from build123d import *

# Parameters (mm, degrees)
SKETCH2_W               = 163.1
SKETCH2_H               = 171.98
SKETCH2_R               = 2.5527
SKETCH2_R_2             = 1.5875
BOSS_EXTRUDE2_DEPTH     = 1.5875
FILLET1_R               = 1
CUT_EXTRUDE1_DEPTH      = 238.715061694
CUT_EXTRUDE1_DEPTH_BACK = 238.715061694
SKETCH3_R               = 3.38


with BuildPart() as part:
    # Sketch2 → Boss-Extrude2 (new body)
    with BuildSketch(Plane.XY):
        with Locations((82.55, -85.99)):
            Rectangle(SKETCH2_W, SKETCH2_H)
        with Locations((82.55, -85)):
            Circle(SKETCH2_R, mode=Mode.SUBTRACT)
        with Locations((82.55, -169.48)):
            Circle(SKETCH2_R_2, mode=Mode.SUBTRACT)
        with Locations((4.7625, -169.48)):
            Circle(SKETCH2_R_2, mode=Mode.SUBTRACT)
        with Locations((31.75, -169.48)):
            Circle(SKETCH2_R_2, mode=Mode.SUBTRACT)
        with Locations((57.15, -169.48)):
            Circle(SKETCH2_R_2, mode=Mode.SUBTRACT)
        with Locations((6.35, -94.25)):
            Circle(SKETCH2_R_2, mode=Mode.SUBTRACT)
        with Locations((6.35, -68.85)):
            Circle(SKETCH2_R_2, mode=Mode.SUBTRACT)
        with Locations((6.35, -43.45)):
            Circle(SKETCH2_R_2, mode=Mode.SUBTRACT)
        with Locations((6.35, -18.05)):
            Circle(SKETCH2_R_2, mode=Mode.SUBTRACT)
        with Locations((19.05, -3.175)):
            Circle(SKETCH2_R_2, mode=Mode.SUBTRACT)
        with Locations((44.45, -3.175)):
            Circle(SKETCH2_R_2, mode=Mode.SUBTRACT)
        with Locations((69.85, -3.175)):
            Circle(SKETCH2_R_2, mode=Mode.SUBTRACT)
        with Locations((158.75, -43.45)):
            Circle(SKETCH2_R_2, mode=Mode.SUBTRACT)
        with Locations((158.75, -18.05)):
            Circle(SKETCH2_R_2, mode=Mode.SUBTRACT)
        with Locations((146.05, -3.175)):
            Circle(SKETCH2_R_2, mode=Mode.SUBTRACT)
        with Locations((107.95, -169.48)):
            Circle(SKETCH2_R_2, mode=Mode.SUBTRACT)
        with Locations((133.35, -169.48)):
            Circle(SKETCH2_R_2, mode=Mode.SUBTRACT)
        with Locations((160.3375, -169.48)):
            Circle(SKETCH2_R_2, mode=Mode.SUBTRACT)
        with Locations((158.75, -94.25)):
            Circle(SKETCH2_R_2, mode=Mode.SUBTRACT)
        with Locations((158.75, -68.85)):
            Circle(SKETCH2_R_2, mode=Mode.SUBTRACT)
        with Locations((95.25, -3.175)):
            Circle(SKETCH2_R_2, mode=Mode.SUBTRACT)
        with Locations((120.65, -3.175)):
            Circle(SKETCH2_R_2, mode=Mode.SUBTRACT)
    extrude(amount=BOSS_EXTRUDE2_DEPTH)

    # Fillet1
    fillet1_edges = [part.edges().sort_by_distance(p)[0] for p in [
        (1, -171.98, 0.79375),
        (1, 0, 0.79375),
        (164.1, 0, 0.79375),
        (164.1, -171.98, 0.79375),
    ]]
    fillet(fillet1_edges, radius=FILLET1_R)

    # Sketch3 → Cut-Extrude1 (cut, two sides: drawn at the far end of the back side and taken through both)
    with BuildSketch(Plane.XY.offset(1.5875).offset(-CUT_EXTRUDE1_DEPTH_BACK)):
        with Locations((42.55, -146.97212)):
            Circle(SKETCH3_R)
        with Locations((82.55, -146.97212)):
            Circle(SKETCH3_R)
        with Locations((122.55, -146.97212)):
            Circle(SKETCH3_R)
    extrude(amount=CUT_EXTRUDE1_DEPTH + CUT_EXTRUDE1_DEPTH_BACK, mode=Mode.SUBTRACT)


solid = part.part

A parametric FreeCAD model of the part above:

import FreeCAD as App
import Part
import Sketcher

V = App.Vector
Q = App.Units.Quantity


def edges_at(feature, points):
    """Names of the edges that pass closest to the given points."""
    edges = feature.Shape.Edges
    near = lambda p: min(range(len(edges)), key=lambda i: edges[i].distToShape(Part.Vertex(*p))[0])
    return sorted({f"Edge{near(p) + 1}" for p in points})


def add_polygon(sketch, points):
    """Adds a closed chain of lines whose ends are joined by coincident constraints."""
    first, n = sketch.GeometryCount, len(points)
    for a, b in zip(points, points[1:] + points[:1]):
        sketch.addGeometry(Part.LineSegment(App.Vector(*a, 0), App.Vector(*b, 0)), False)
    for i in range(n):
        sketch.addConstraint(Sketcher.Constraint("Coincident", first + i, 2, first + (i + 1) % n, 1))

doc = App.newDocument("Part")
body = doc.addObject("PartDesign::Body", "Body")

# Sketch on XY plane
sketch1 = body.newObject("Sketcher::SketchObject", "Sketch")
sketch1.AttachmentSupport = (doc.getObject("XY_Plane"), [""])
sketch1.MapMode = "FlatFace"
add_polygon(sketch1, [(1, 0), (1, -172), (164.1, -172), (164.1, 0)])  # lines 0-3
sketch1.addGeometry(Part.Circle(V(4.8, -169.5, 0), V(0, 0, 1), 1.6), False)  # 4
sketch1.addGeometry(Part.Circle(V(31.8, -169.5, 0), V(0, 0, 1), 1.6), False)  # 5
sketch1.addGeometry(Part.Circle(V(57.1, -169.5, 0), V(0, 0, 1), 1.6), False)  # 6
sketch1.addGeometry(Part.Circle(V(6.3, -94.2, 0), V(0, 0, 1), 1.6), False)  # 7
sketch1.addGeometry(Part.Circle(V(82.5, -169.5, 0), V(0, 0, 1), 1.6), False)  # 8
sketch1.addGeometry(Part.Circle(V(108, -169.5, 0), V(0, 0, 1), 1.6), False)  # 9
sketch1.addGeometry(Part.Circle(V(133.3, -169.5, 0), V(0, 0, 1), 1.6), False)  # 10
sketch1.addGeometry(Part.Circle(V(160.3, -169.5, 0), V(0, 0, 1), 1.6), False)  # 11
sketch1.addGeometry(Part.Circle(V(158.8, -94.2, 0), V(0, 0, 1), 1.6), False)  # 12
sketch1.addGeometry(Part.Circle(V(6.3, -68.8, 0), V(0, 0, 1), 1.6), False)  # 13
sketch1.addGeometry(Part.Circle(V(6.3, -43.5, 0), V(0, 0, 1), 1.6), False)  # 14
sketch1.addGeometry(Part.Circle(V(6.3, -18.1, 0), V(0, 0, 1), 1.6), False)  # 15
sketch1.addGeometry(Part.Circle(V(19.1, -3.2, 0), V(0, 0, 1), 1.6), False)  # 16
sketch1.addGeometry(Part.Circle(V(44.5, -3.2, 0), V(0, 0, 1), 1.6), False)  # 17
sketch1.addGeometry(Part.Circle(V(69.8, -3.2, 0), V(0, 0, 1), 1.6), False)  # 18
sketch1.addGeometry(Part.Circle(V(82.5, -85, 0), V(0, 0, 1), 2.6), False)  # 19
sketch1.addGeometry(Part.Circle(V(158.8, -68.8, 0), V(0, 0, 1), 1.6), False)  # 20
sketch1.addGeometry(Part.Circle(V(95.2, -3.2, 0), V(0, 0, 1), 1.6), False)  # 21
sketch1.addGeometry(Part.Circle(V(120.7, -3.2, 0), V(0, 0, 1), 1.6), False)  # 22
sketch1.addGeometry(Part.Circle(V(158.8, -43.5, 0), V(0, 0, 1), 1.6), False)  # 23
sketch1.addGeometry(Part.Circle(V(158.8, -18.1, 0), V(0, 0, 1), 1.6), False)  # 24
sketch1.addGeometry(Part.Circle(V(146.1, -3.2, 0), V(0, 0, 1), 1.6), False)  # 25
sketch1.addConstraint([
    Sketcher.Constraint("Vertical", 0),
    Sketcher.Constraint("Horizontal", 1),
    Sketcher.Constraint("Vertical", 2),
    Sketcher.Constraint("Horizontal", 3),
    Sketcher.Constraint("Equal", 4, 5),
    Sketcher.Constraint("Equal", 5, 6),
    Sketcher.Constraint("Equal", 6, 7),
    Sketcher.Constraint("Equal", 7, 8),
    Sketcher.Constraint("Equal", 8, 9),
    Sketcher.Constraint("Equal", 9, 10),
    Sketcher.Constraint("Equal", 10, 11),
    Sketcher.Constraint("Equal", 11, 12),
    Sketcher.Constraint("Equal", 12, 13),
    Sketcher.Constraint("Equal", 13, 14),
    Sketcher.Constraint("Equal", 14, 15),
    Sketcher.Constraint("Equal", 15, 16),
    Sketcher.Constraint("Equal", 16, 17),
    Sketcher.Constraint("Equal", 17, 18),
    Sketcher.Constraint("Equal", 18, 20),
    Sketcher.Constraint("Equal", 20, 21),
    Sketcher.Constraint("Equal", 21, 22),
    Sketcher.Constraint("Equal", 22, 23),
    Sketcher.Constraint("Equal", 23, 24),
    Sketcher.Constraint("Equal", 24, 25),
    Sketcher.Constraint("PointOnObject", 2, 2, -1),
    Sketcher.Constraint("Horizontal", 4, 3, 5, 3),
    Sketcher.Constraint("Horizontal", 5, 3, 6, 3),
    Sketcher.Constraint("Horizontal", 6, 3, 8, 3),
    Sketcher.Constraint("Horizontal", 8, 3, 9, 3),
    Sketcher.Constraint("Horizontal", 9, 3, 10, 3),
    Sketcher.Constraint("Horizontal", 10, 3, 11, 3),
    Sketcher.Constraint("Horizontal", 7, 3, 12, 3),
    Sketcher.Constraint("Horizontal", 16, 3, 17, 3),
    Sketcher.Constraint("Horizontal", 17, 3, 18, 3),
    Sketcher.Constraint("Horizontal", 13, 3, 20, 3),
    Sketcher.Constraint("Horizontal", 18, 3, 21, 3),
    Sketcher.Constraint("Horizontal", 21, 3, 22, 3),
    Sketcher.Constraint("Horizontal", 14, 3, 23, 3),
    Sketcher.Constraint("Horizontal", 15, 3, 24, 3),
    Sketcher.Constraint("Horizontal", 22, 3, 25, 3),
    Sketcher.Constraint("Vertical", 7, 3, 13, 3),
    Sketcher.Constraint("Vertical", 13, 3, 14, 3),
    Sketcher.Constraint("Vertical", 14, 3, 15, 3),
    Sketcher.Constraint("Vertical", 8, 3, 19, 3),
    Sketcher.Constraint("Vertical", 12, 3, 20, 3),
    Sketcher.Constraint("Vertical", 20, 3, 23, 3),
    Sketcher.Constraint("Vertical", 23, 3, 24, 3),
    Sketcher.Constraint("Diameter", 4, Q("0.125 in")),
    Sketcher.Constraint("Diameter", 19, Q("0.201 in")),
    Sketcher.Constraint("DistanceX", 5, 3, 6, 3, Q("1 in")),
    Sketcher.Constraint("DistanceX", 7, 3, 5, 3, Q("1 in")),
    Sketcher.Constraint("DistanceX", 6, 3, 8, 3, Q("1 in")),
    Sketcher.Constraint("DistanceX", 8, 3, 9, 3, Q("1 in")),
    Sketcher.Constraint("DistanceX", 9, 3, 10, 3, Q("1 in")),
    Sketcher.Constraint("DistanceX", 10, 3, 12, 3, Q("1 in")),
    Sketcher.Constraint("DistanceY", 7, 3, 13, 3, Q("1 in")),
    Sketcher.Constraint("DistanceY", 13, 3, 14, 3, Q("1 in")),
    Sketcher.Constraint("DistanceY", 14, 3, 15, 3, Q("1 in")),
    Sketcher.Constraint("DistanceX", 16, 3, 17, 3, Q("1 in")),
    Sketcher.Constraint("DistanceX", 17, 3, 18, 3, Q("1 in")),
    Sketcher.Constraint("DistanceX", 18, 3, 21, 3, Q("1 in")),
    Sketcher.Constraint("DistanceX", 21, 3, 22, 3, Q("1 in")),
    Sketcher.Constraint("DistanceX", 22, 3, 25, 3, Q("1 in")),
    Sketcher.Constraint("DistanceX", 15, 3, 16, 3, Q("0.5 in")),
    Sketcher.Constraint("DistanceX", -1, 1, 5, 3, Q("1.25 in")),
    Sketcher.Constraint("DistanceX", -1, 1, 4, 3, Q("0.1875 in")),
    Sketcher.Constraint("DistanceX", -1, 1, 11, 3, Q("6.3125 in")),
    Sketcher.Constraint("DistanceY", 16, 3, -1, 1, Q("0.125 in")),
    Sketcher.Constraint("DistanceX", 1, 1, 1, 2, 163.1),
    Sketcher.Constraint("DistanceY", 0, 2, 0, 1, 171.98),
    Sketcher.Constraint("DistanceY", 4, 3, -1, 1, 169.48),
    Sketcher.Constraint("DistanceY", 7, 3, -1, 1, 94.25),
    Sketcher.Constraint("DistanceY", 19, 3, -1, 1, 85.0),
    Sketcher.Constraint("DistanceX", -1, 1, 0, 2, 1.0),
])
pad1 = body.newObject("PartDesign::Pad", "Pad")
pad1.Profile = sketch1
pad1.Length = Q("0.0625 in")
doc.recompute()

fillet = body.newObject("PartDesign::Fillet", "Fillet")
fillet.Base = (pad1, edges_at(pad1, [
    (1, -171.98, 0.794),
    (1, 0, 0.794),
    (164.1, 0, 0.794),
    (164.1, -171.98, 0.794),
]))
fillet.Radius = 1

# Sketch on XY plane
sketch2 = body.newObject("Sketcher::SketchObject", "Sketch001")
sketch2.AttachmentSupport = (doc.getObject("XY_Plane"), [""])
sketch2.MapMode = "FlatFace"
sketch2.AttachmentOffset = App.Placement(V(0, 0, 0.0625 * 25.4), App.Rotation())
sketch2.addGeometry([
    Part.Circle(V(42.5, -147, 0), V(0, 0, 1), 3.4),
    Part.Circle(V(82.5, -147, 0), V(0, 0, 1), 3.4),
    Part.Circle(V(122.5, -147, 0), V(0, 0, 1), 3.4),
], False)
sketch2.addConstraint([
    Sketcher.Constraint("Equal", 0, 1),
    Sketcher.Constraint("Equal", 1, 2),
    Sketcher.Constraint("Horizontal", 0, 3, 1, 3),
    Sketcher.Constraint("Horizontal", 1, 3, 2, 3),
    Sketcher.Constraint("Diameter", 0, 6.76),
    Sketcher.Constraint("DistanceX", -1, 1, 1, 3, Q("3.25 in")),
    Sketcher.Constraint("DistanceX", -1, 1, 0, 3, 42.55),
    Sketcher.Constraint("DistanceX", -1, 1, 2, 3, 122.55),
    Sketcher.Constraint("DistanceY", 0, 3, -1, 1, 146.97212),
])
pocket1 = body.newObject("PartDesign::Pocket", "Pocket")
pocket1.Profile = sketch2
pocket1.Type = "ThroughAll"
pocket1.Midplane = True

doc.recompute()
